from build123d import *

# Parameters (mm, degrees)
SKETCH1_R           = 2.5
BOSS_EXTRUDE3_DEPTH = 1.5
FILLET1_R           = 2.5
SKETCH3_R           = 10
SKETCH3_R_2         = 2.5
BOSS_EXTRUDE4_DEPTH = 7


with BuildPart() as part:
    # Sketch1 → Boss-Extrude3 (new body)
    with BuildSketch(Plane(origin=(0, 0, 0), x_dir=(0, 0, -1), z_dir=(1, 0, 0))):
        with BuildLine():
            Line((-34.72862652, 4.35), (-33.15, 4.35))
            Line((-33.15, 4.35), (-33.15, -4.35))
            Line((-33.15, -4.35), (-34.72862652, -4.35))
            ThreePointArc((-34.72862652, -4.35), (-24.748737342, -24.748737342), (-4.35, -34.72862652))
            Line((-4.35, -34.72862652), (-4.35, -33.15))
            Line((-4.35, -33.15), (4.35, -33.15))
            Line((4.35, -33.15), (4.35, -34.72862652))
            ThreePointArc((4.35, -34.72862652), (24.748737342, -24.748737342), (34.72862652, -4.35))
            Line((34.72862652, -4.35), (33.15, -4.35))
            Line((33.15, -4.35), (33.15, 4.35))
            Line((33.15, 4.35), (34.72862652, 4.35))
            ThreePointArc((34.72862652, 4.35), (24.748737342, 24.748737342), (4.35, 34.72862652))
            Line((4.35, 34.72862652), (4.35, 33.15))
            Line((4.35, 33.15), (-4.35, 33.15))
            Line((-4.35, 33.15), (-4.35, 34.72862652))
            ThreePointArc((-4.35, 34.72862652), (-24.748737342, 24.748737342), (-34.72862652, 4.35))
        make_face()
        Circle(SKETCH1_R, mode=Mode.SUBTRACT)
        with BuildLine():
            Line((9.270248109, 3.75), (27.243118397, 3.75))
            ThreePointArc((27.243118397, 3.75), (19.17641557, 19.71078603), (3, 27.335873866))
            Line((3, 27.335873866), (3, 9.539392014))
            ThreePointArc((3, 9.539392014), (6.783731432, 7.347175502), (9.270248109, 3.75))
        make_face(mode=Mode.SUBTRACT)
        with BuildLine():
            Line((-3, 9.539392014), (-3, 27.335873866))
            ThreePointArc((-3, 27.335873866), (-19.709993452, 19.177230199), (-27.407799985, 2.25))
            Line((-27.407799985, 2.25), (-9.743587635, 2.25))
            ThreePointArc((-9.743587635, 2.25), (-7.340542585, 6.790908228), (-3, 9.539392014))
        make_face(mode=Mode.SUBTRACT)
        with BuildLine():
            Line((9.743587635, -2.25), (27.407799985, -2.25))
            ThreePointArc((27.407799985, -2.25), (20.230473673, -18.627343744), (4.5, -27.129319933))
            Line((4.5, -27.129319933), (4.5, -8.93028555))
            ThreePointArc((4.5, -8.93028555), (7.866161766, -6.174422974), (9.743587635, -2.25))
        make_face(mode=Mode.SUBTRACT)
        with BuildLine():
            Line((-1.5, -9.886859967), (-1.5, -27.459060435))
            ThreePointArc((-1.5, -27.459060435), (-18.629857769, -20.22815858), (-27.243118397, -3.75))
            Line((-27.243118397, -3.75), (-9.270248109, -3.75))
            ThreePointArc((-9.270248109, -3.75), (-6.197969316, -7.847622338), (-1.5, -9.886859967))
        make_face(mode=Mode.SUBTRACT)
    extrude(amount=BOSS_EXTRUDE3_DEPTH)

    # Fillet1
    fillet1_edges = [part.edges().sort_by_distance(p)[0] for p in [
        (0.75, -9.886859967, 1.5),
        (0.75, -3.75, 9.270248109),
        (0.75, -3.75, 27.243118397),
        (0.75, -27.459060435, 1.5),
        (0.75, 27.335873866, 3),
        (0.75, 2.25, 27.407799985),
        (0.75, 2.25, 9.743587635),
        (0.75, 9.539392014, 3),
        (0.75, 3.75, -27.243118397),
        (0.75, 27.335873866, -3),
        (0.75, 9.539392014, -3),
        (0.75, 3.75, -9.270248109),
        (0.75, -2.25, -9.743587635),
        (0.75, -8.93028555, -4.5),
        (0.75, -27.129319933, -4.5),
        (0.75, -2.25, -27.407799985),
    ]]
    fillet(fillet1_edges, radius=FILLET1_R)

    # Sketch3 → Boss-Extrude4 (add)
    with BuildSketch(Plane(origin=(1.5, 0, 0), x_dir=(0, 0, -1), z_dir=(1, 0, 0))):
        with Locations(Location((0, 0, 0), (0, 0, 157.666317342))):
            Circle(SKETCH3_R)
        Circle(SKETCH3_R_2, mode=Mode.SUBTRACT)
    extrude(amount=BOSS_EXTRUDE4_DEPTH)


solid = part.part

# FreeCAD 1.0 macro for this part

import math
import FreeCAD as App
import Part
import Sketcher

V = App.Vector


def edges_at(feature, points):
    """Names of the edges that pass closest to the given points."""
    edges = feature.Shape.Edges
    near = lambda p: min(range(len(edges)), key=lambda i: edges[i].distToShape(Part.Vertex(*p))[0])
    return sorted({f"Edge{near(p) + 1}" for p in points})

doc = App.newDocument("Part")
params = doc.addObject("Spreadsheet::Sheet", "Params")
for row, (alias, value) in enumerate([
    ("sketch1_diameter", "5 mm"),
    ("sketch1_radius", "35 mm"),
    ("sketch1_radius2", "10 mm"),
    ("sketch1_radius3", "27.5 mm"),
    ("sketch1_width", "8.7 mm"),
    ("pad1_length", "1.5 mm"),
    ("fillet_radius", "2.5 mm"),
    ("sketch2_diameter", "20 mm"),
    ("sketch2_diameter2", "5 mm"),
    ("pad2_length", "7 mm"),
], start=1):
    params.set(f"A{row}", alias)
    params.set(f"B{row}", "=" + value)
    params.setAlias(f"B{row}", alias)

body = doc.addObject("PartDesign::Body", "Body")

# Sketch on YZ plane
sketch1 = body.newObject("Sketcher::SketchObject", "Sketch")
sketch1.AttachmentSupport = (doc.getObject("YZ_Plane"), [""])
sketch1.MapMode = "FlatFace"
sketch1.addGeometry(Part.LineSegment(V(4.3, 34.7, 0), V(4.3, 33.1, 0)), False)
sketch1.addGeometry(Part.LineSegment(V(4.3, 33.1, 0), V(-4.3, 33.1, 0)), False)
sketch1.addGeometry(Part.LineSegment(V(-4.3, 33.1, 0), V(-4.3, 34.7, 0)), False)
sketch1.addGeometry(Part.ArcOfCircle(Part.Circle(V(0, 0, 0), V(0, 0, 1), 35), math.radians(97), math.radians(173)), False)
sketch1.addGeometry(Part.LineSegment(V(-34.7, 4.3, 0), V(-33.1, 4.3, 0)), False)
sketch1.addGeometry(Part.LineSegment(V(-33.1, 4.3, 0), V(-33.1, -4.3, 0)), False)
sketch1.addGeometry(Part.LineSegment(V(-33.1, -4.3, 0), V(-34.7, -4.3, 0)), False)
sketch1.addGeometry(Part.ArcOfCircle(Part.Circle(V(0, 0, 0), V(0, 0, 1), 35), math.radians(-173), math.radians(-97)), False)
sketch1.addGeometry(Part.LineSegment(V(-4.3, -34.7, 0), V(-4.3, -33.1, 0)), False)
sketch1.addGeometry(Part.LineSegment(V(-4.3, -33.1, 0), V(4.3, -33.1, 0)), False)
sketch1.addGeometry(Part.LineSegment(V(4.3, -33.1, 0), V(4.3, -34.7, 0)), False)
sketch1.addGeometry(Part.ArcOfCircle(Part.Circle(V(0, 0, 0), V(0, 0, 1), 35), math.radians(-83), math.radians(-7)), False)
sketch1.addGeometry(Part.LineSegment(V(34.7, -4.3, 0), V(33.1, -4.3, 0)), False)
sketch1.addGeometry(Part.LineSegment(V(33.1, -4.3, 0), V(33.1, 4.3, 0)), False)
sketch1.addGeometry(Part.LineSegment(V(33.1, 4.3, 0), V(34.7, 4.3, 0)), False)
sketch1.addGeometry(Part.ArcOfCircle(Part.Circle(V(0, 0, 0), V(0, 0, 1), 35), math.radians(7), math.radians(83)), False)
sketch1.addGeometry(Part.ArcOfCircle(Part.Circle(V(0, 0, 0), V(0, 0, 1), 10), math.radians(112), math.radians(171)), False)
sketch1.addGeometry(Part.LineSegment(V(-9.9, 1.5, 0), V(-27.5, 1.5, 0)), False)
sketch1.addGeometry(Part.ArcOfCircle(Part.Circle(V(0, 0, 0), V(0, 0, 1), 27.5), math.radians(98), math.radians(177)), False)
sketch1.addGeometry(Part.LineSegment(V(-3.8, 27.2, 0), V(-3.8, 9.3, 0)), False)
sketch1.addGeometry(Part.ArcOfCircle(Part.Circle(V(0, 0, 0), V(0, 0, 1), 10), math.radians(-153), math.radians(-103)), False)
sketch1.addGeometry(Part.LineSegment(V(-2.2, -9.7, 0), V(-2.2, -27.4, 0)), False)
sketch1.addGeometry(Part.ArcOfCircle(Part.Circle(V(0, 0, 0), V(0, 0, 1), 27.5), math.radians(-171), math.radians(-95)), False)
sketch1.addGeometry(Part.LineSegment(V(-27.1, -4.5, 0), V(-8.9, -4.5, 0)), False)
sketch1.addGeometry(Part.Circle(V(0, 0, 0), V(0, 0, 1), 2.5), False)
sketch1.addGeometry(Part.LineSegment(V(27.3, 3, 0), V(9.5, 3, 0)), False)
sketch1.addGeometry(Part.ArcOfCircle(Part.Circle(V(0, 0, 0), V(0, 0, 1), 10), math.radians(17), math.radians(77)), False)
sketch1.addGeometry(Part.LineSegment(V(2.2, 9.7, 0), V(2.2, 27.4, 0)), False)
sketch1.addGeometry(Part.ArcOfCircle(Part.Circle(V(0, 0, 0), V(0, 0, 1), 27.5), math.radians(6), math.radians(85)), False)
sketch1.addGeometry(Part.LineSegment(V(3.8, -27.2, 0), V(3.8, -9.3, 0)), False)
sketch1.addGeometry(Part.ArcOfCircle(Part.Circle(V(0, 0, 0), V(0, 0, 1), 10), math.radians(-68), math.radians(-17)), False)
sketch1.addGeometry(Part.LineSegment(V(9.5, -3, 0), V(27.3, -3, 0)), False)
sketch1.addGeometry(Part.ArcOfCircle(Part.Circle(V(0, 0, 0), V(0, 0, 1), 27.5), math.radians(-82), math.radians(-6)), False)
sketch1.addConstraint(Sketcher.Constraint("Coincident", 0, 2, 1, 1))
sketch1.addConstraint(Sketcher.Constraint("Coincident", 1, 2, 2, 1))
sketch1.addConstraint(Sketcher.Constraint("Coincident", 2, 2, 3, 1))
sketch1.addConstraint(Sketcher.Constraint("Coincident", 3, 2, 4, 1))
sketch1.addConstraint(Sketcher.Constraint("Coincident", 4, 2, 5, 1))
sketch1.addConstraint(Sketcher.Constraint("Coincident", 5, 2, 6, 1))
sketch1.addConstraint(Sketcher.Constraint("Coincident", 6, 2, 7, 1))
sketch1.addConstraint(Sketcher.Constraint("Coincident", 7, 2, 8, 1))
sketch1.addConstraint(Sketcher.Constraint("Coincident", 8, 2, 9, 1))
sketch1.addConstraint(Sketcher.Constraint("Coincident", 9, 2, 10, 1))
sketch1.addConstraint(Sketcher.Constraint("Coincident", 10, 2, 11, 1))
sketch1.addConstraint(Sketcher.Constraint("Coincident", 11, 2, 12, 1))
sketch1.addConstraint(Sketcher.Constraint("Coincident", 12, 2, 13, 1))
sketch1.addConstraint(Sketcher.Constraint("Coincident", 13, 2, 14, 1))
sketch1.addConstraint(Sketcher.Constraint("Coincident", 14, 2, 15, 1))
sketch1.addConstraint(Sketcher.Constraint("Coincident", 15, 2, 0, 1))
sketch1.addConstraint(Sketcher.Constraint("Coincident", 16, 2, 17, 1))
sketch1.addConstraint(Sketcher.Constraint("Coincident", 17, 2, 18, 2))
sketch1.addConstraint(Sketcher.Constraint("Coincident", 18, 1, 19, 1))
sketch1.addConstraint(Sketcher.Constraint("Coincident", 19, 2, 16, 1))
sketch1.addConstraint(Sketcher.Constraint("Coincident", 20, 2, 21, 1))
sketch1.addConstraint(Sketcher.Constraint("Coincident", 21, 2, 22, 2))
sketch1.addConstraint(Sketcher.Constraint("Coincident", 22, 1, 23, 1))
sketch1.addConstraint(Sketcher.Constraint("Coincident", 23, 2, 20, 1))
sketch1.addConstraint(Sketcher.Constraint("Coincident", 25, 2, 26, 1))
sketch1.addConstraint(Sketcher.Constraint("Coincident", 26, 2, 27, 1))
sketch1.addConstraint(Sketcher.Constraint("Coincident", 27, 2, 28, 2))
sketch1.addConstraint(Sketcher.Constraint("Coincident", 28, 1, 25, 1))
sketch1.addConstraint(Sketcher.Constraint("Coincident", 29, 2, 30, 1))
sketch1.addConstraint(Sketcher.Constraint("Coincident", 30, 2, 31, 1))
sketch1.addConstraint(Sketcher.Constraint("Coincident", 31, 2, 32, 2))
sketch1.addConstraint(Sketcher.Constraint("Coincident", 32, 1, 29, 1))
sketch1.addConstraint(Sketcher.Constraint("Vertical", 0))
sketch1.addConstraint(Sketcher.Constraint("Horizontal", 1))
sketch1.addConstraint(Sketcher.Constraint("Vertical", 2))
sketch1.addConstraint(Sketcher.Constraint("Horizontal", 4))
sketch1.addConstraint(Sketcher.Constraint("Vertical", 5))
sketch1.addConstraint(Sketcher.Constraint("Horizontal", 6))
sketch1.addConstraint(Sketcher.Constraint("Vertical", 8))
sketch1.addConstraint(Sketcher.Constraint("Horizontal", 9))
sketch1.addConstraint(Sketcher.Constraint("Vertical", 10))
sketch1.addConstraint(Sketcher.Constraint("Horizontal", 12))
sketch1.addConstraint(Sketcher.Constraint("Vertical", 13))
sketch1.addConstraint(Sketcher.Constraint("Horizontal", 14))
sketch1.addConstraint(Sketcher.Constraint("Horizontal", 17))
sketch1.addConstraint(Sketcher.Constraint("Vertical", 19))
sketch1.addConstraint(Sketcher.Constraint("Vertical", 21))
sketch1.addConstraint(Sketcher.Constraint("Horizontal", 23))
sketch1.addConstraint(Sketcher.Constraint("Horizontal", 25))
sketch1.addConstraint(Sketcher.Constraint("Vertical", 27))
sketch1.addConstraint(Sketcher.Constraint("Vertical", 29))
sketch1.addConstraint(Sketcher.Constraint("Horizontal", 31))
sketch1.addConstraint(Sketcher.Constraint("Coincident", 3, 3, -1, 1))
sketch1.addConstraint(Sketcher.Constraint("Coincident", 7, 3, -1, 1))
sketch1.addConstraint(Sketcher.Constraint("Coincident", 11, 3, -1, 1))
sketch1.addConstraint(Sketcher.Constraint("Coincident", 15, 3, -1, 1))
sketch1.addConstraint(Sketcher.Constraint("Coincident", 16, 3, -1, 1))
sketch1.addConstraint(Sketcher.Constraint("Coincident", 18, 3, -1, 1))
sketch1.addConstraint(Sketcher.Constraint("Coincident", 20, 3, -1, 1))
sketch1.addConstraint(Sketcher.Constraint("Coincident", 22, 3, -1, 1))
sketch1.addConstraint(Sketcher.Constraint("Coincident", 24, 3, -1, 1))
sketch1.addConstraint(Sketcher.Constraint("Coincident", 26, 3, -1, 1))
sketch1.addConstraint(Sketcher.Constraint("Coincident", 28, 3, -1, 1))
sketch1.addConstraint(Sketcher.Constraint("Coincident", 30, 3, -1, 1))
sketch1.addConstraint(Sketcher.Constraint("Coincident", 32, 3, -1, 1))
sketch1.addConstraint(Sketcher.Constraint("Equal", 3, 7))
sketch1.addConstraint(Sketcher.Constraint("Equal", 7, 11))
sketch1.addConstraint(Sketcher.Constraint("Equal", 11, 15))
sketch1.addConstraint(Sketcher.Constraint("Equal", 16, 20))
sketch1.addConstraint(Sketcher.Constraint("Equal", 18, 22))
sketch1.addConstraint(Sketcher.Constraint("Equal", 20, 26))
sketch1.addConstraint(Sketcher.Constraint("Equal", 22, 28))
sketch1.addConstraint(Sketcher.Constraint("Equal", 26, 30))
sketch1.addConstraint(Sketcher.Constraint("Equal", 28, 32))
sketch1.addConstraint(Sketcher.Constraint("Symmetric", 0, 2, 8, 2, -1, 1))
sketch1.addConstraint(Sketcher.Constraint("Symmetric", 4, 2, 12, 2, -1, 1))
sketch1.addConstraint(Sketcher.Constraint("Horizontal", 7, 2, 10, 2))
sketch1.addConstraint(Sketcher.Constraint("Horizontal", 6, 2, 11, 2))
sketch1.addConstraint(Sketcher.Constraint("Horizontal", 4, 2, 13, 2))
sketch1.addConstraint(Sketcher.Constraint("Horizontal", 2, 2, 15, 2))
sketch1.addConstraint(Sketcher.Constraint("Vertical", 25, 2, 30, 2))
sketch1.addConstraint(Sketcher.Constraint("Equal", 14, 0))
sketch1.addConstraint(Sketcher.Constraint("Equal", 9, 5))
sketch1.addConstraint(Sketcher.Constraint("Equal", 21, 27))
sketch1.addConstraint(Sketcher.Constraint("Equal", 19, 29))
sketch1.addConstraint(Sketcher.Constraint("Diameter", 24, 5.0))
sketch1.addConstraint(Sketcher.Constraint("Radius", 3, 35.0))
sketch1.addConstraint(Sketcher.Constraint("Radius", 16, 10.0))
sketch1.addConstraint(Sketcher.Constraint("Radius", 18, 27.5))
sketch1.addConstraint(Sketcher.Constraint("DistanceX", 1, 2, 1, 1, 8.7))
sketch1.addConstraint(Sketcher.Constraint("DistanceY", -1, 1, 25, 2, 3.0))
sketch1.addConstraint(Sketcher.Constraint("DistanceY", 22, 1, 17, 2, 6.0))
sketch1.addConstraint(Sketcher.Constraint("DistanceX", 19, 2, 26, 2, 6.0))
sketch1.addConstraint(Sketcher.Constraint("DistanceY", -1, 1, 16, 2, 1.5))
sketch1.addConstraint(Sketcher.Constraint("DistanceX", 1, 2, 18, 1, 0.6))
sketch1.addConstraint(Sketcher.Constraint("DistanceY", -1, 1, 0, 2, 33.15))
sketch1.setExpression("Constraints[85]", "Params.sketch1_diameter")
sketch1.setExpression("Constraints[86]", "Params.sketch1_radius")
sketch1.setExpression("Constraints[87]", "Params.sketch1_radius2")
sketch1.setExpression("Constraints[88]", "Params.sketch1_radius3")
sketch1.setExpression("Constraints[89]", "Params.sketch1_width")
pad1 = body.newObject("PartDesign::Pad", "Pad")
pad1.Profile = sketch1
pad1.setExpression("Length", "Params.pad1_length")
doc.recompute()

fillet = body.newObject("PartDesign::Fillet", "Fillet")
fillet.Base = (pad1, edges_at(pad1, [
    (0.75, -9.887, 1.5),
    (0.75, -3.75, 9.27),
    (0.75, -3.75, 27.243),
    (0.75, -27.459, 1.5),
    (0.75, 27.336, 3),
    (0.75, 2.25, 27.408),
    (0.75, 2.25, 9.744),
    (0.75, 9.539, 3),
    (0.75, 3.75, -27.243),
    (0.75, 27.336, -3),
    (0.75, 9.539, -3),
    (0.75, 3.75, -9.27),
    (0.75, -2.25, -9.744),
    (0.75, -8.93, -4.5),
    (0.75, -27.129, -4.5),
    (0.75, -2.25, -27.408),
]))
fillet.setExpression("Radius", "Params.fillet_radius")

# Sketch on YZ plane
sketch2 = body.newObject("Sketcher::SketchObject", "Sketch001")
sketch2.AttachmentSupport = (doc.getObject("YZ_Plane"), [""])
sketch2.MapMode = "FlatFace"
sketch2.AttachmentOffset = App.Placement(V(0, 0, 1.5), App.Rotation())
sketch2.addGeometry(Part.Circle(V(0, 0, 0), V(0, 0, 1), 10), False)
sketch2.addGeometry(Part.Circle(V(0, 0, 0), V(0, 0, 1), 2.5), False)
sketch2.addConstraint(Sketcher.Constraint("Coincident", 0, 3, -1, 1))
sketch2.addConstraint(Sketcher.Constraint("Coincident", 1, 3, -1, 1))
sketch2.addConstraint(Sketcher.Constraint("Diameter", 0, 20.0))
sketch2.addConstraint(Sketcher.Constraint("Diameter", 1, 5.0))
sketch2.setExpression("Constraints[2]", "Params.sketch2_diameter")
sketch2.setExpression("Constraints[3]", "Params.sketch2_diameter2")
pad2 = body.newObject("PartDesign::Pad", "Pad001")
pad2.Profile = sketch2
pad2.setExpression("Length", "Params.pad2_length")

doc.recompute()
